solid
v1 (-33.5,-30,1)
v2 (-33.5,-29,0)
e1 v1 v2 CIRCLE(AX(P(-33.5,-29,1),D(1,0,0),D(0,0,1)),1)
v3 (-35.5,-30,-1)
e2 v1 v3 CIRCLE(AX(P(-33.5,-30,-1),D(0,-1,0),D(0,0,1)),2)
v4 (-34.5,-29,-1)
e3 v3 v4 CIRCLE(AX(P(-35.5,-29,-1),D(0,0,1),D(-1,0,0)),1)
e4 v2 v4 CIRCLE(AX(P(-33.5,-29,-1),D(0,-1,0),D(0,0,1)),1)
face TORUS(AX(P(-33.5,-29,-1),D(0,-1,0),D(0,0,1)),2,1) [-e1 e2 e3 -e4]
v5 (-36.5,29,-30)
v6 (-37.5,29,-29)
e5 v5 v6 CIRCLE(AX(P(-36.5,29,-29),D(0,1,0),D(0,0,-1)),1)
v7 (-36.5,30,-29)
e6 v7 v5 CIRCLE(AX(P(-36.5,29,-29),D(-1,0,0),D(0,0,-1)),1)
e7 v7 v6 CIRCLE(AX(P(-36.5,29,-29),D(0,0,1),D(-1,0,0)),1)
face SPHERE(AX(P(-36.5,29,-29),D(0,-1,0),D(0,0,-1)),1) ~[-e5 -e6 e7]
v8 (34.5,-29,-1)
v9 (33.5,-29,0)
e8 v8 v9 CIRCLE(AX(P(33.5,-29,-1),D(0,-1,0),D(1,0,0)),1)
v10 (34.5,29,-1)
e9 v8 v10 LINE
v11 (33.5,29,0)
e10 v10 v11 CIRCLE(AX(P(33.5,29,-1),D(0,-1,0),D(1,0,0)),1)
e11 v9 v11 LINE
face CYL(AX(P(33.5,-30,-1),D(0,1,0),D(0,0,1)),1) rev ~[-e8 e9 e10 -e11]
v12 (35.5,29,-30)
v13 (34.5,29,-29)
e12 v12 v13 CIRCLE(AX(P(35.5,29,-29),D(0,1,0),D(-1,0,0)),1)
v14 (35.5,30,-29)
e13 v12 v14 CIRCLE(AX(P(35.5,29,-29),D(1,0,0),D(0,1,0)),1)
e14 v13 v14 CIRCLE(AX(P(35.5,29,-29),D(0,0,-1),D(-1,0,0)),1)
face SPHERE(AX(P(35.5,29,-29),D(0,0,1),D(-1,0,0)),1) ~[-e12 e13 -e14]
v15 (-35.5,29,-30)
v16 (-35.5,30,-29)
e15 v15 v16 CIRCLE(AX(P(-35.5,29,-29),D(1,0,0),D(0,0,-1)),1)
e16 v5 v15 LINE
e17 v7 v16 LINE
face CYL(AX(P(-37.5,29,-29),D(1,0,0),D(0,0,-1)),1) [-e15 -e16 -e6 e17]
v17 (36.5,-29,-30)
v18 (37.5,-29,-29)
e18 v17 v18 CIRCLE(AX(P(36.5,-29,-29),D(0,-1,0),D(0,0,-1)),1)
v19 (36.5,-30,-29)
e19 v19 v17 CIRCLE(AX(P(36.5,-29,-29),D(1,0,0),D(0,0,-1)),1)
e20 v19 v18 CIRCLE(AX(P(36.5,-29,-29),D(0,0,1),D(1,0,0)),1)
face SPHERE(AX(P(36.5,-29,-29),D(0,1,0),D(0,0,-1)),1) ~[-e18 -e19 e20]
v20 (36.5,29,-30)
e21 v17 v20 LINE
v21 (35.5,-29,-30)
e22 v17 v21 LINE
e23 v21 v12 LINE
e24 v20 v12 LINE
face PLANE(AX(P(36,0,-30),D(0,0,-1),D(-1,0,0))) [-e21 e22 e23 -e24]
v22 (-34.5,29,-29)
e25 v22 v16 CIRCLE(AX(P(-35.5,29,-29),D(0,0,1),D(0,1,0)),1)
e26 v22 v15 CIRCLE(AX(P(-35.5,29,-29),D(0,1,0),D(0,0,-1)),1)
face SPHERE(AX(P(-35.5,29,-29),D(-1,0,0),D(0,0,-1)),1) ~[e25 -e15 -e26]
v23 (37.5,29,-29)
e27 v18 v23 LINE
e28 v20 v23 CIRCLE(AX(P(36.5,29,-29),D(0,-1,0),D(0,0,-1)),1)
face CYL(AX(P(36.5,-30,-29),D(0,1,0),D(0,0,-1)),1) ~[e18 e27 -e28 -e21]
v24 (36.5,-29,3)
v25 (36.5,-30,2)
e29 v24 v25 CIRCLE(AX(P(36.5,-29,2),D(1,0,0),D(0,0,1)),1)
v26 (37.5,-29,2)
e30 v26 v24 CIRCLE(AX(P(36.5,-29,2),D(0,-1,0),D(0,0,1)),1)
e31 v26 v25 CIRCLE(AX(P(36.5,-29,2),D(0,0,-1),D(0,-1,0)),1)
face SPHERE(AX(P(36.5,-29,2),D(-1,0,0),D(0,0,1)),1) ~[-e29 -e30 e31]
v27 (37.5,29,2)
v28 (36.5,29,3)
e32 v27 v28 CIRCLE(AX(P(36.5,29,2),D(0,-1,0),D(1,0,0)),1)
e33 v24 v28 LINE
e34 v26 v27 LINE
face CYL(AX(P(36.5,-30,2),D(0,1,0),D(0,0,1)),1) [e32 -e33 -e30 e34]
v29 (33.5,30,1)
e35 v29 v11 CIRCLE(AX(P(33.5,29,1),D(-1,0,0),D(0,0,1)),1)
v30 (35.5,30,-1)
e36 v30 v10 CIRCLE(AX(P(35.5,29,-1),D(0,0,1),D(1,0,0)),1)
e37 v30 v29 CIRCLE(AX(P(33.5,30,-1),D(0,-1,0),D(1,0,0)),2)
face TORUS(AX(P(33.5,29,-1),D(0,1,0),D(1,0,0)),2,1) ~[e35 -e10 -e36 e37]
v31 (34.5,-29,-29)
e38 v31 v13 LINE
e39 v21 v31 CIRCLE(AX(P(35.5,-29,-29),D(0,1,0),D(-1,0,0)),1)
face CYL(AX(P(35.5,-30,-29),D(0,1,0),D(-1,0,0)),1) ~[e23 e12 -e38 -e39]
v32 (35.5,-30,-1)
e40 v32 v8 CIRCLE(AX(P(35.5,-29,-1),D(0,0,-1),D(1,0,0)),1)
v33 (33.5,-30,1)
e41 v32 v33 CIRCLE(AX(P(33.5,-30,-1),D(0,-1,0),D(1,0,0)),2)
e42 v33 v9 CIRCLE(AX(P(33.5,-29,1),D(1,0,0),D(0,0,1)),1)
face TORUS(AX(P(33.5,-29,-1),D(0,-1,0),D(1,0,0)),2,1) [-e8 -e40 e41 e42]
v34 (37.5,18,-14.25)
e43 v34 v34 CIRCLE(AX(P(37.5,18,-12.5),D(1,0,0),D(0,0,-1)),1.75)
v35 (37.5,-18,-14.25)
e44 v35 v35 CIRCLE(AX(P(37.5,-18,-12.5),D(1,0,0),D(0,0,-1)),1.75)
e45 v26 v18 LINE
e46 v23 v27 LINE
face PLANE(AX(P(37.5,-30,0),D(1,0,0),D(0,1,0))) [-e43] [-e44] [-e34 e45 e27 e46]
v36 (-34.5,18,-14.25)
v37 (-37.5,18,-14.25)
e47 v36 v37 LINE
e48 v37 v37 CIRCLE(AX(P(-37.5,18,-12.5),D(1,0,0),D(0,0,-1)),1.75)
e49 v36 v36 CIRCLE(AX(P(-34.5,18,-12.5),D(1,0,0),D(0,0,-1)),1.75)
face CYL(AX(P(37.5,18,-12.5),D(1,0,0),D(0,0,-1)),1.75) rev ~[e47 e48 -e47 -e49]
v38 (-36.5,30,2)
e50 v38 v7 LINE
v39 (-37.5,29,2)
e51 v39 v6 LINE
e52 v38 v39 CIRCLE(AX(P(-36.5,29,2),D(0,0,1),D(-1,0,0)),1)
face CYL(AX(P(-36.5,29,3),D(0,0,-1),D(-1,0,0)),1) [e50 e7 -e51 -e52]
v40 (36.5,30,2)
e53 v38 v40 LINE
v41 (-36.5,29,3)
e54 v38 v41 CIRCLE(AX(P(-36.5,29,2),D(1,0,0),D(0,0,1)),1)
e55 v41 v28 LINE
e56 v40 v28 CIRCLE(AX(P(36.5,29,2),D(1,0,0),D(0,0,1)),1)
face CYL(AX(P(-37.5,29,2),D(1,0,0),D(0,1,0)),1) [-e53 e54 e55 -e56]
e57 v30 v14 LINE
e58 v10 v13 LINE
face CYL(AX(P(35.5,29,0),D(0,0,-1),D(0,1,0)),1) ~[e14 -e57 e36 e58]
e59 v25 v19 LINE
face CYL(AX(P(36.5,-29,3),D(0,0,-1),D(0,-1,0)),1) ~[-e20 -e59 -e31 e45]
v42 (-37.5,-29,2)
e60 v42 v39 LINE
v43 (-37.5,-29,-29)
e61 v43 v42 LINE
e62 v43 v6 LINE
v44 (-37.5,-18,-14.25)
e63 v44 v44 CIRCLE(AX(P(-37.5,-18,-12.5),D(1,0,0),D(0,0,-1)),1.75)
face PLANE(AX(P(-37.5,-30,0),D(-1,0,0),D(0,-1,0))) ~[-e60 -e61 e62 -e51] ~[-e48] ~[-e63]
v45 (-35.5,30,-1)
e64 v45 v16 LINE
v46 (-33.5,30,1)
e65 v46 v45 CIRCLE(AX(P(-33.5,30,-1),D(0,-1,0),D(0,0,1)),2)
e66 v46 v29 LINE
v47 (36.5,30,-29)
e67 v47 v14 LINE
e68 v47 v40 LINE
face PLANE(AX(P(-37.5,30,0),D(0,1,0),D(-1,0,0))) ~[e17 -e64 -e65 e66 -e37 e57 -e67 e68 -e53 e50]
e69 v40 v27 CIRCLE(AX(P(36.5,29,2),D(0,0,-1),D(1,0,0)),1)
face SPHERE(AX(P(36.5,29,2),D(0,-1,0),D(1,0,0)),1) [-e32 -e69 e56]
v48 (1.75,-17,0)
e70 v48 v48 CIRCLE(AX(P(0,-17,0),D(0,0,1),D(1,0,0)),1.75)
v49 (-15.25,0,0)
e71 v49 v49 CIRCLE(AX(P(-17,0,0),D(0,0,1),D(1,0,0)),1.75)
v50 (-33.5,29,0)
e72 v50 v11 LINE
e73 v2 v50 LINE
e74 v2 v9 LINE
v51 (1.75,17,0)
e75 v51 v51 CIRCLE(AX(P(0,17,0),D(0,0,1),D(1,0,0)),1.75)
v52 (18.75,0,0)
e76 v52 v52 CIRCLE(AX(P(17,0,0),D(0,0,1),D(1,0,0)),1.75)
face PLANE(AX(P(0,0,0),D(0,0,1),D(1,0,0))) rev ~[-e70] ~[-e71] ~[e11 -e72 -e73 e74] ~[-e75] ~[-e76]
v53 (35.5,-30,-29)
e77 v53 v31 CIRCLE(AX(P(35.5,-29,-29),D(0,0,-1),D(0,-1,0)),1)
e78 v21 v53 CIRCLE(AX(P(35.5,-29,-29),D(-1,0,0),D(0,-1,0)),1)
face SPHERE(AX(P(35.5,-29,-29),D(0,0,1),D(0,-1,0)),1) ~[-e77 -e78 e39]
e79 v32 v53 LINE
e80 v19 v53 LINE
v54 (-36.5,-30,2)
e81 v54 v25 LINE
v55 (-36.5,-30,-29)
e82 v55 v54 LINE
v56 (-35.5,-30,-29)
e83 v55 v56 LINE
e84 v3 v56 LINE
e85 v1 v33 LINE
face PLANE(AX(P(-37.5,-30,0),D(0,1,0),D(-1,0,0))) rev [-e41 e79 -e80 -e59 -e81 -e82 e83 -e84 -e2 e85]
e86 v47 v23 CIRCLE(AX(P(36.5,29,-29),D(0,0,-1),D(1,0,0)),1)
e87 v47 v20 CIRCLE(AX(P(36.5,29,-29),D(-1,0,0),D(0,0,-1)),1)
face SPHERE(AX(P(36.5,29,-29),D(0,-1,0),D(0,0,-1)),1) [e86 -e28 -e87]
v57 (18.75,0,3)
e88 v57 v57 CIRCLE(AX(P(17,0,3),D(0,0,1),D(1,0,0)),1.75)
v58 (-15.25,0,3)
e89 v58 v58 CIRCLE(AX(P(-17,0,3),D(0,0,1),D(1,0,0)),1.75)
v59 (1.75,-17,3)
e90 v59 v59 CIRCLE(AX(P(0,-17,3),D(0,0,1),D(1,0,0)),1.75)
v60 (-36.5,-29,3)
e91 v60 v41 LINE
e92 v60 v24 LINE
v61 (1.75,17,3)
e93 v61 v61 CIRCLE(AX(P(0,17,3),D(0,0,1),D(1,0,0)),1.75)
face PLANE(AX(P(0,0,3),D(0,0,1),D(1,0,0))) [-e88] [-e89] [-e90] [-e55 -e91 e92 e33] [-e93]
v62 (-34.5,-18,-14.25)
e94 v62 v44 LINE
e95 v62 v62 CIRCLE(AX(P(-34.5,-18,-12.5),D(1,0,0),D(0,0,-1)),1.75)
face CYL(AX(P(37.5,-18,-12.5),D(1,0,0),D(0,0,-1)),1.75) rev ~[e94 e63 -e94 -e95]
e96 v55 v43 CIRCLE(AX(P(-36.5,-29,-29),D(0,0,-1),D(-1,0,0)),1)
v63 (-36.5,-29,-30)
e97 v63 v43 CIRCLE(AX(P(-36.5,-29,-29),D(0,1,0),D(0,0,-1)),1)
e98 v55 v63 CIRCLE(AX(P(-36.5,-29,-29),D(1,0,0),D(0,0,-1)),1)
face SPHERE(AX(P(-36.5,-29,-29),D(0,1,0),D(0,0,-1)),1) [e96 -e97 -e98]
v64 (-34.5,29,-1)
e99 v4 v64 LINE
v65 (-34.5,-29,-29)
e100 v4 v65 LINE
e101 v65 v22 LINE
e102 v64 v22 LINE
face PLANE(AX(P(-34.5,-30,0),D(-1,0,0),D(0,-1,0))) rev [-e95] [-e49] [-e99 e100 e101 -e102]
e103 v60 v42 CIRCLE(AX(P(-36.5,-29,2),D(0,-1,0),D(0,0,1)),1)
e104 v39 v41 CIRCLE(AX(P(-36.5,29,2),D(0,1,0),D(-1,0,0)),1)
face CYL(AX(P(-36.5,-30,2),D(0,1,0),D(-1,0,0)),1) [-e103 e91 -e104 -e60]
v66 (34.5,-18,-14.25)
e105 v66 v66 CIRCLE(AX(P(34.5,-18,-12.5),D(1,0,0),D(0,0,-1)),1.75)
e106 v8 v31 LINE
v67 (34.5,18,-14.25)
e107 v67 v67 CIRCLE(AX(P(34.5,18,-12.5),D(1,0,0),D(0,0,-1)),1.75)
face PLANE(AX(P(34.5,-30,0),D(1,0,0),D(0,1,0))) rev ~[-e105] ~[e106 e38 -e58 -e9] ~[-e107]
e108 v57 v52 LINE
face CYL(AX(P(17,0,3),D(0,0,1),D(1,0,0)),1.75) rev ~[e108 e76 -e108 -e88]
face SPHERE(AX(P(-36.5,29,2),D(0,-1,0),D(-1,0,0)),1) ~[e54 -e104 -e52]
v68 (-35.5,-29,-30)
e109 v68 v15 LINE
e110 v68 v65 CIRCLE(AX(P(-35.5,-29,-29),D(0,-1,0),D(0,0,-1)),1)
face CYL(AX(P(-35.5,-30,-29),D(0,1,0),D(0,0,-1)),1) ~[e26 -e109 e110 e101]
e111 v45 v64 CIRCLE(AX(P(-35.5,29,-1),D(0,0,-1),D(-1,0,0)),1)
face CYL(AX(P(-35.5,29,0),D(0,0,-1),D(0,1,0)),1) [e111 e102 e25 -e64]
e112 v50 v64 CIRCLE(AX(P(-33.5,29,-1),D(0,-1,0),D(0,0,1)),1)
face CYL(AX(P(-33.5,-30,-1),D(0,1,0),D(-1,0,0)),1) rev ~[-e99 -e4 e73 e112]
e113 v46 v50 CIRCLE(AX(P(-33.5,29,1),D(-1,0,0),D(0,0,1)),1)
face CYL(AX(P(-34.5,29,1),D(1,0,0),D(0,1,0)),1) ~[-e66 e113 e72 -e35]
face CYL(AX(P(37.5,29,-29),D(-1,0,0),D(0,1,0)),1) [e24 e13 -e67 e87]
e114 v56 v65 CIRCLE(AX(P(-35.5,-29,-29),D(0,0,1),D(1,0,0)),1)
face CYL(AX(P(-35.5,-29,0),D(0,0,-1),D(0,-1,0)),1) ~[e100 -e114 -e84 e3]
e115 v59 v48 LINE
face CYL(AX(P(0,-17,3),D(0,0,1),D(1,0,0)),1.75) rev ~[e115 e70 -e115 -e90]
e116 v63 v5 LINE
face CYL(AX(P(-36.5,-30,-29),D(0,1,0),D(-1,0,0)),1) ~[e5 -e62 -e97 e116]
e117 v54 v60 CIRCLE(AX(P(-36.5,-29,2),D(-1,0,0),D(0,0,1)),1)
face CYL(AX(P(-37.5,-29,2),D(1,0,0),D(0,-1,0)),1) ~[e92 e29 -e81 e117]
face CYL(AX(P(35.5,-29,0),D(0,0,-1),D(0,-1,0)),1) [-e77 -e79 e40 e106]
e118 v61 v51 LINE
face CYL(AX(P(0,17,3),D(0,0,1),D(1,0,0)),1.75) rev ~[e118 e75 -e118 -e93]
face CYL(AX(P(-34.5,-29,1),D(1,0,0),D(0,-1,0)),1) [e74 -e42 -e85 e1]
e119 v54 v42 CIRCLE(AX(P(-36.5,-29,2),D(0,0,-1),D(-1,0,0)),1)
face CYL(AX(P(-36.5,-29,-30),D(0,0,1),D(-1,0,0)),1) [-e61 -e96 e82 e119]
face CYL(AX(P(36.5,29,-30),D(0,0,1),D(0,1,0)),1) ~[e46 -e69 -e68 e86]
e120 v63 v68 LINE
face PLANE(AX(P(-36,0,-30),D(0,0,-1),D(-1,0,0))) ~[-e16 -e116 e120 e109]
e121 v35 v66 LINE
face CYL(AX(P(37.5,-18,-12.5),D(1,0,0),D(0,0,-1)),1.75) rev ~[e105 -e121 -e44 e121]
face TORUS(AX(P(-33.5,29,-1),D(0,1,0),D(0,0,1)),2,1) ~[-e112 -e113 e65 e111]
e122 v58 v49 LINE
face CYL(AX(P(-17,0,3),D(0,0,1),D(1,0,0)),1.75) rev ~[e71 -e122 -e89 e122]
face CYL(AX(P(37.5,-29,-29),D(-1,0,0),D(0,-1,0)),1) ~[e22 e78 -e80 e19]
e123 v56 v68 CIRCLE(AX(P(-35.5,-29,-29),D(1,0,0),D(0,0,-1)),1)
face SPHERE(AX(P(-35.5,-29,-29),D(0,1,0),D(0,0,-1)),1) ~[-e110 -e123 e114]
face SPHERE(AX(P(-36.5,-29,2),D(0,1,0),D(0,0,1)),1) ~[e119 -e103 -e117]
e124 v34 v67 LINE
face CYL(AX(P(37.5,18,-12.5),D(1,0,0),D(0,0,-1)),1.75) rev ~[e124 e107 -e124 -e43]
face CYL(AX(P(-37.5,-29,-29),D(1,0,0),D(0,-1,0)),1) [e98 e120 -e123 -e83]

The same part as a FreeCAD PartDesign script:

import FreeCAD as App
import Part
import Sketcher

V = App.Vector


def edges_at(feature, points):
    """Names of the edges that pass closest to the given points."""
    edges = feature.Shape.Edges
    near = lambda p: min(range(len(edges)), key=lambda i: edges[i].distToShape(Part.Vertex(*p))[0])
    return sorted({f"Edge{near(p) + 1}" for p in points})

doc = App.newDocument("Part")
body = doc.addObject("PartDesign::Body", "Body")

# Sketch on XY plane
sketch1 = body.newObject("Sketcher::SketchObject", "Sketch")
sketch1.AttachmentSupport = (doc.getObject("XY_Plane"), [""])
sketch1.MapMode = "FlatFace"
sketch1.addGeometry([
    Part.LineSegment(V(-37.5, 30, 0), V(-37.5, -30, 0)),
    Part.LineSegment(V(-37.5, -30, 0), V(37.5, -30, 0)),
    Part.LineSegment(V(37.5, -30, 0), V(37.5, 30, 0)),
    Part.LineSegment(V(37.5, 30, 0), V(-37.5, 30, 0)),
], False)
sketch1.addConstraint([
    Sketcher.Constraint("Coincident", 0, 2, 1, 1),
    Sketcher.Constraint("Coincident", 1, 2, 2, 1),
    Sketcher.Constraint("Coincident", 2, 2, 3, 1),
    Sketcher.Constraint("Coincident", 3, 2, 0, 1),
    Sketcher.Constraint("Vertical", 0),
    Sketcher.Constraint("Horizontal", 1),
    Sketcher.Constraint("Vertical", 2),
    Sketcher.Constraint("Horizontal", 3),
    Sketcher.Constraint("Symmetric", 0, 2, 2, 2, -1, 1),
    Sketcher.Constraint("DistanceX", 1, 1, 1, 2, 75.0),
    Sketcher.Constraint("DistanceY", 0, 2, 0, 1, 60.0),
])
pad1 = body.newObject("PartDesign::Pad", "Pad")
pad1.Profile = sketch1
pad1.Length = 3

# Sketch on XY plane
sketch2 = body.newObject("Sketcher::SketchObject", "Sketch001")
sketch2.AttachmentSupport = (doc.getObject("XY_Plane"), [""])
sketch2.MapMode = "FlatFace"
sketch2.addGeometry([
    Part.LineSegment(V(37.5, 30, 0), V(37.5, -30, 0)),
    Part.LineSegment(V(37.5, -30, 0), V(34.5, -30, 0)),
    Part.LineSegment(V(34.5, -30, 0), V(34.5, 30, 0)),
    Part.LineSegment(V(34.5, 30, 0), V(37.5, 30, 0)),
], False)
sketch2.addConstraint([
    Sketcher.Constraint("Coincident", 0, 2, 1, 1),
    Sketcher.Constraint("Coincident", 1, 2, 2, 1),
    Sketcher.Constraint("Coincident", 2, 2, 3, 1),
    Sketcher.Constraint("Coincident", 3, 2, 0, 1),
    Sketcher.Constraint("Vertical", 0),
    Sketcher.Constraint("Horizontal", 1),
    Sketcher.Constraint("Vertical", 2),
    Sketcher.Constraint("Horizontal", 3),
    Sketcher.Constraint("DistanceX", 1, 2, 1, 1, 3.0),
    Sketcher.Constraint("DistanceY", 0, 2, 0, 1, 60.0),
    Sketcher.Constraint("DistanceY", 0, 2, -1, 1, 30.0),
    Sketcher.Constraint("DistanceX", -1, 1, 0, 2, 37.5),
])
pad2 = body.newObject("PartDesign::Pad", "Pad001")
pad2.Profile = sketch2
pad2.Length = 30
pad2.Reversed = True
doc.recompute()

mirrored = body.newObject("PartDesign::Mirrored", "Mirrored")
mirrored.Originals = [pad2]
mirrored.MirrorPlane = (doc.getObject("YZ_Plane"), [""])
body.Tip = mirrored

# Sketch on XY plane
sketch3 = body.newObject("Sketcher::SketchObject", "Sketch002")
sketch3.AttachmentSupport = (doc.getObject("XY_Plane"), [""])
sketch3.MapMode = "FlatFace"
sketch3.AttachmentOffset = App.Placement(V(0, 0, 3), App.Rotation())
sketch3.addGeometry([
    Part.Circle(V(0, 17, 0), V(0, 0, 1), 1.75),
    Part.Circle(V(17, 0, 0), V(0, 0, 1), 1.75),
    Part.Circle(V(0, -17, 0), V(0, 0, 1), 1.75),
    Part.Circle(V(-17, 0, 0), V(0, 0, 1), 1.75),
], False)
sketch3.addConstraint([
    Sketcher.Constraint("Equal", 0, 1),
    Sketcher.Constraint("Equal", 1, 2),
    Sketcher.Constraint("Equal", 2, 3),
    Sketcher.Constraint("Symmetric", 0, 3, 2, 3, -1, 1),
    Sketcher.Constraint("Symmetric", 1, 3, 3, 3, -1, 1),
    Sketcher.Constraint("PointOnObject", 0, 3, -2),
    Sketcher.Constraint("PointOnObject", 1, 3, -1),
    Sketcher.Constraint("Diameter", 0, 3.5),
    Sketcher.Constraint("DistanceY", -1, 1, 0, 3, 17.0),
    Sketcher.Constraint("DistanceX", -1, 1, 1, 3, 17.0),
])
pocket1 = body.newObject("PartDesign::Pocket", "Pocket")
pocket1.Profile = sketch3
pocket1.Length = 30
doc.recompute()

fillet = body.newObject("PartDesign::Fillet", "Fillet")
fillet.Base = (pocket1, edges_at(pocket1, [
    (-37.5, 0, 3),
    (0, 30, 0),
    (34.5, 0, 0),
    (34.5, -30, -15),
    (34.5, 30, -15),
    (37.5, 0, -30),
    (0, -30, 3),
    (36, -30, -30),
    (34.5, 0, -30),
    (36, 30, -30),
    (0, -30, 0),
    (-37.5, 0, -30),
    (-36, 30, -30),
    (-34.5, 0, -30),
    (-34.5, 30, -15),
    (-36, -30, -30),
    (-34.5, -30, -15),
    (-34.5, 0, 0),
    (37.5, 0, 3),
    (37.5, -30, -13.5),
    (-37.5, -30, -13.5),
    (-37.5, 30, -13.5),
    (37.5, 30, -13.5),
    (0, 30, 3),
]))
fillet.Radius = 1

# Sketch on YZ plane
sketch4 = body.newObject("Sketcher::SketchObject", "Sketch003")
sketch4.AttachmentSupport = (doc.getObject("YZ_Plane"), [""])
sketch4.MapMode = "FlatFace"
sketch4.AttachmentOffset = App.Placement(V(0, 0, 37.5), App.Rotation())
sketch4.addGeometry([
    Part.Circle(V(18, -12.5, 0), V(0, 0, 1), 1.75),
    Part.Circle(V(-18, -12.5, 0), V(0, 0, 1), 1.75),
], False)
sketch4.addConstraint([
    Sketcher.Constraint("Equal", 0, 1),
    Sketcher.Constraint("Symmetric", 0, 3, 1, 3, -2),
    Sketcher.Constraint("Diameter", 0, 3.5),
    Sketcher.Constraint("DistanceX", -1, 1, 0, 3, 18.0),
    Sketcher.Constraint("DistanceY", 0, 3, -1, 1, 12.5),
])
pocket2 = body.newObject("PartDesign::Pocket", "Pocket001")
pocket2.Profile = sketch4
pocket2.Type = "ThroughAll"

doc.recompute()
